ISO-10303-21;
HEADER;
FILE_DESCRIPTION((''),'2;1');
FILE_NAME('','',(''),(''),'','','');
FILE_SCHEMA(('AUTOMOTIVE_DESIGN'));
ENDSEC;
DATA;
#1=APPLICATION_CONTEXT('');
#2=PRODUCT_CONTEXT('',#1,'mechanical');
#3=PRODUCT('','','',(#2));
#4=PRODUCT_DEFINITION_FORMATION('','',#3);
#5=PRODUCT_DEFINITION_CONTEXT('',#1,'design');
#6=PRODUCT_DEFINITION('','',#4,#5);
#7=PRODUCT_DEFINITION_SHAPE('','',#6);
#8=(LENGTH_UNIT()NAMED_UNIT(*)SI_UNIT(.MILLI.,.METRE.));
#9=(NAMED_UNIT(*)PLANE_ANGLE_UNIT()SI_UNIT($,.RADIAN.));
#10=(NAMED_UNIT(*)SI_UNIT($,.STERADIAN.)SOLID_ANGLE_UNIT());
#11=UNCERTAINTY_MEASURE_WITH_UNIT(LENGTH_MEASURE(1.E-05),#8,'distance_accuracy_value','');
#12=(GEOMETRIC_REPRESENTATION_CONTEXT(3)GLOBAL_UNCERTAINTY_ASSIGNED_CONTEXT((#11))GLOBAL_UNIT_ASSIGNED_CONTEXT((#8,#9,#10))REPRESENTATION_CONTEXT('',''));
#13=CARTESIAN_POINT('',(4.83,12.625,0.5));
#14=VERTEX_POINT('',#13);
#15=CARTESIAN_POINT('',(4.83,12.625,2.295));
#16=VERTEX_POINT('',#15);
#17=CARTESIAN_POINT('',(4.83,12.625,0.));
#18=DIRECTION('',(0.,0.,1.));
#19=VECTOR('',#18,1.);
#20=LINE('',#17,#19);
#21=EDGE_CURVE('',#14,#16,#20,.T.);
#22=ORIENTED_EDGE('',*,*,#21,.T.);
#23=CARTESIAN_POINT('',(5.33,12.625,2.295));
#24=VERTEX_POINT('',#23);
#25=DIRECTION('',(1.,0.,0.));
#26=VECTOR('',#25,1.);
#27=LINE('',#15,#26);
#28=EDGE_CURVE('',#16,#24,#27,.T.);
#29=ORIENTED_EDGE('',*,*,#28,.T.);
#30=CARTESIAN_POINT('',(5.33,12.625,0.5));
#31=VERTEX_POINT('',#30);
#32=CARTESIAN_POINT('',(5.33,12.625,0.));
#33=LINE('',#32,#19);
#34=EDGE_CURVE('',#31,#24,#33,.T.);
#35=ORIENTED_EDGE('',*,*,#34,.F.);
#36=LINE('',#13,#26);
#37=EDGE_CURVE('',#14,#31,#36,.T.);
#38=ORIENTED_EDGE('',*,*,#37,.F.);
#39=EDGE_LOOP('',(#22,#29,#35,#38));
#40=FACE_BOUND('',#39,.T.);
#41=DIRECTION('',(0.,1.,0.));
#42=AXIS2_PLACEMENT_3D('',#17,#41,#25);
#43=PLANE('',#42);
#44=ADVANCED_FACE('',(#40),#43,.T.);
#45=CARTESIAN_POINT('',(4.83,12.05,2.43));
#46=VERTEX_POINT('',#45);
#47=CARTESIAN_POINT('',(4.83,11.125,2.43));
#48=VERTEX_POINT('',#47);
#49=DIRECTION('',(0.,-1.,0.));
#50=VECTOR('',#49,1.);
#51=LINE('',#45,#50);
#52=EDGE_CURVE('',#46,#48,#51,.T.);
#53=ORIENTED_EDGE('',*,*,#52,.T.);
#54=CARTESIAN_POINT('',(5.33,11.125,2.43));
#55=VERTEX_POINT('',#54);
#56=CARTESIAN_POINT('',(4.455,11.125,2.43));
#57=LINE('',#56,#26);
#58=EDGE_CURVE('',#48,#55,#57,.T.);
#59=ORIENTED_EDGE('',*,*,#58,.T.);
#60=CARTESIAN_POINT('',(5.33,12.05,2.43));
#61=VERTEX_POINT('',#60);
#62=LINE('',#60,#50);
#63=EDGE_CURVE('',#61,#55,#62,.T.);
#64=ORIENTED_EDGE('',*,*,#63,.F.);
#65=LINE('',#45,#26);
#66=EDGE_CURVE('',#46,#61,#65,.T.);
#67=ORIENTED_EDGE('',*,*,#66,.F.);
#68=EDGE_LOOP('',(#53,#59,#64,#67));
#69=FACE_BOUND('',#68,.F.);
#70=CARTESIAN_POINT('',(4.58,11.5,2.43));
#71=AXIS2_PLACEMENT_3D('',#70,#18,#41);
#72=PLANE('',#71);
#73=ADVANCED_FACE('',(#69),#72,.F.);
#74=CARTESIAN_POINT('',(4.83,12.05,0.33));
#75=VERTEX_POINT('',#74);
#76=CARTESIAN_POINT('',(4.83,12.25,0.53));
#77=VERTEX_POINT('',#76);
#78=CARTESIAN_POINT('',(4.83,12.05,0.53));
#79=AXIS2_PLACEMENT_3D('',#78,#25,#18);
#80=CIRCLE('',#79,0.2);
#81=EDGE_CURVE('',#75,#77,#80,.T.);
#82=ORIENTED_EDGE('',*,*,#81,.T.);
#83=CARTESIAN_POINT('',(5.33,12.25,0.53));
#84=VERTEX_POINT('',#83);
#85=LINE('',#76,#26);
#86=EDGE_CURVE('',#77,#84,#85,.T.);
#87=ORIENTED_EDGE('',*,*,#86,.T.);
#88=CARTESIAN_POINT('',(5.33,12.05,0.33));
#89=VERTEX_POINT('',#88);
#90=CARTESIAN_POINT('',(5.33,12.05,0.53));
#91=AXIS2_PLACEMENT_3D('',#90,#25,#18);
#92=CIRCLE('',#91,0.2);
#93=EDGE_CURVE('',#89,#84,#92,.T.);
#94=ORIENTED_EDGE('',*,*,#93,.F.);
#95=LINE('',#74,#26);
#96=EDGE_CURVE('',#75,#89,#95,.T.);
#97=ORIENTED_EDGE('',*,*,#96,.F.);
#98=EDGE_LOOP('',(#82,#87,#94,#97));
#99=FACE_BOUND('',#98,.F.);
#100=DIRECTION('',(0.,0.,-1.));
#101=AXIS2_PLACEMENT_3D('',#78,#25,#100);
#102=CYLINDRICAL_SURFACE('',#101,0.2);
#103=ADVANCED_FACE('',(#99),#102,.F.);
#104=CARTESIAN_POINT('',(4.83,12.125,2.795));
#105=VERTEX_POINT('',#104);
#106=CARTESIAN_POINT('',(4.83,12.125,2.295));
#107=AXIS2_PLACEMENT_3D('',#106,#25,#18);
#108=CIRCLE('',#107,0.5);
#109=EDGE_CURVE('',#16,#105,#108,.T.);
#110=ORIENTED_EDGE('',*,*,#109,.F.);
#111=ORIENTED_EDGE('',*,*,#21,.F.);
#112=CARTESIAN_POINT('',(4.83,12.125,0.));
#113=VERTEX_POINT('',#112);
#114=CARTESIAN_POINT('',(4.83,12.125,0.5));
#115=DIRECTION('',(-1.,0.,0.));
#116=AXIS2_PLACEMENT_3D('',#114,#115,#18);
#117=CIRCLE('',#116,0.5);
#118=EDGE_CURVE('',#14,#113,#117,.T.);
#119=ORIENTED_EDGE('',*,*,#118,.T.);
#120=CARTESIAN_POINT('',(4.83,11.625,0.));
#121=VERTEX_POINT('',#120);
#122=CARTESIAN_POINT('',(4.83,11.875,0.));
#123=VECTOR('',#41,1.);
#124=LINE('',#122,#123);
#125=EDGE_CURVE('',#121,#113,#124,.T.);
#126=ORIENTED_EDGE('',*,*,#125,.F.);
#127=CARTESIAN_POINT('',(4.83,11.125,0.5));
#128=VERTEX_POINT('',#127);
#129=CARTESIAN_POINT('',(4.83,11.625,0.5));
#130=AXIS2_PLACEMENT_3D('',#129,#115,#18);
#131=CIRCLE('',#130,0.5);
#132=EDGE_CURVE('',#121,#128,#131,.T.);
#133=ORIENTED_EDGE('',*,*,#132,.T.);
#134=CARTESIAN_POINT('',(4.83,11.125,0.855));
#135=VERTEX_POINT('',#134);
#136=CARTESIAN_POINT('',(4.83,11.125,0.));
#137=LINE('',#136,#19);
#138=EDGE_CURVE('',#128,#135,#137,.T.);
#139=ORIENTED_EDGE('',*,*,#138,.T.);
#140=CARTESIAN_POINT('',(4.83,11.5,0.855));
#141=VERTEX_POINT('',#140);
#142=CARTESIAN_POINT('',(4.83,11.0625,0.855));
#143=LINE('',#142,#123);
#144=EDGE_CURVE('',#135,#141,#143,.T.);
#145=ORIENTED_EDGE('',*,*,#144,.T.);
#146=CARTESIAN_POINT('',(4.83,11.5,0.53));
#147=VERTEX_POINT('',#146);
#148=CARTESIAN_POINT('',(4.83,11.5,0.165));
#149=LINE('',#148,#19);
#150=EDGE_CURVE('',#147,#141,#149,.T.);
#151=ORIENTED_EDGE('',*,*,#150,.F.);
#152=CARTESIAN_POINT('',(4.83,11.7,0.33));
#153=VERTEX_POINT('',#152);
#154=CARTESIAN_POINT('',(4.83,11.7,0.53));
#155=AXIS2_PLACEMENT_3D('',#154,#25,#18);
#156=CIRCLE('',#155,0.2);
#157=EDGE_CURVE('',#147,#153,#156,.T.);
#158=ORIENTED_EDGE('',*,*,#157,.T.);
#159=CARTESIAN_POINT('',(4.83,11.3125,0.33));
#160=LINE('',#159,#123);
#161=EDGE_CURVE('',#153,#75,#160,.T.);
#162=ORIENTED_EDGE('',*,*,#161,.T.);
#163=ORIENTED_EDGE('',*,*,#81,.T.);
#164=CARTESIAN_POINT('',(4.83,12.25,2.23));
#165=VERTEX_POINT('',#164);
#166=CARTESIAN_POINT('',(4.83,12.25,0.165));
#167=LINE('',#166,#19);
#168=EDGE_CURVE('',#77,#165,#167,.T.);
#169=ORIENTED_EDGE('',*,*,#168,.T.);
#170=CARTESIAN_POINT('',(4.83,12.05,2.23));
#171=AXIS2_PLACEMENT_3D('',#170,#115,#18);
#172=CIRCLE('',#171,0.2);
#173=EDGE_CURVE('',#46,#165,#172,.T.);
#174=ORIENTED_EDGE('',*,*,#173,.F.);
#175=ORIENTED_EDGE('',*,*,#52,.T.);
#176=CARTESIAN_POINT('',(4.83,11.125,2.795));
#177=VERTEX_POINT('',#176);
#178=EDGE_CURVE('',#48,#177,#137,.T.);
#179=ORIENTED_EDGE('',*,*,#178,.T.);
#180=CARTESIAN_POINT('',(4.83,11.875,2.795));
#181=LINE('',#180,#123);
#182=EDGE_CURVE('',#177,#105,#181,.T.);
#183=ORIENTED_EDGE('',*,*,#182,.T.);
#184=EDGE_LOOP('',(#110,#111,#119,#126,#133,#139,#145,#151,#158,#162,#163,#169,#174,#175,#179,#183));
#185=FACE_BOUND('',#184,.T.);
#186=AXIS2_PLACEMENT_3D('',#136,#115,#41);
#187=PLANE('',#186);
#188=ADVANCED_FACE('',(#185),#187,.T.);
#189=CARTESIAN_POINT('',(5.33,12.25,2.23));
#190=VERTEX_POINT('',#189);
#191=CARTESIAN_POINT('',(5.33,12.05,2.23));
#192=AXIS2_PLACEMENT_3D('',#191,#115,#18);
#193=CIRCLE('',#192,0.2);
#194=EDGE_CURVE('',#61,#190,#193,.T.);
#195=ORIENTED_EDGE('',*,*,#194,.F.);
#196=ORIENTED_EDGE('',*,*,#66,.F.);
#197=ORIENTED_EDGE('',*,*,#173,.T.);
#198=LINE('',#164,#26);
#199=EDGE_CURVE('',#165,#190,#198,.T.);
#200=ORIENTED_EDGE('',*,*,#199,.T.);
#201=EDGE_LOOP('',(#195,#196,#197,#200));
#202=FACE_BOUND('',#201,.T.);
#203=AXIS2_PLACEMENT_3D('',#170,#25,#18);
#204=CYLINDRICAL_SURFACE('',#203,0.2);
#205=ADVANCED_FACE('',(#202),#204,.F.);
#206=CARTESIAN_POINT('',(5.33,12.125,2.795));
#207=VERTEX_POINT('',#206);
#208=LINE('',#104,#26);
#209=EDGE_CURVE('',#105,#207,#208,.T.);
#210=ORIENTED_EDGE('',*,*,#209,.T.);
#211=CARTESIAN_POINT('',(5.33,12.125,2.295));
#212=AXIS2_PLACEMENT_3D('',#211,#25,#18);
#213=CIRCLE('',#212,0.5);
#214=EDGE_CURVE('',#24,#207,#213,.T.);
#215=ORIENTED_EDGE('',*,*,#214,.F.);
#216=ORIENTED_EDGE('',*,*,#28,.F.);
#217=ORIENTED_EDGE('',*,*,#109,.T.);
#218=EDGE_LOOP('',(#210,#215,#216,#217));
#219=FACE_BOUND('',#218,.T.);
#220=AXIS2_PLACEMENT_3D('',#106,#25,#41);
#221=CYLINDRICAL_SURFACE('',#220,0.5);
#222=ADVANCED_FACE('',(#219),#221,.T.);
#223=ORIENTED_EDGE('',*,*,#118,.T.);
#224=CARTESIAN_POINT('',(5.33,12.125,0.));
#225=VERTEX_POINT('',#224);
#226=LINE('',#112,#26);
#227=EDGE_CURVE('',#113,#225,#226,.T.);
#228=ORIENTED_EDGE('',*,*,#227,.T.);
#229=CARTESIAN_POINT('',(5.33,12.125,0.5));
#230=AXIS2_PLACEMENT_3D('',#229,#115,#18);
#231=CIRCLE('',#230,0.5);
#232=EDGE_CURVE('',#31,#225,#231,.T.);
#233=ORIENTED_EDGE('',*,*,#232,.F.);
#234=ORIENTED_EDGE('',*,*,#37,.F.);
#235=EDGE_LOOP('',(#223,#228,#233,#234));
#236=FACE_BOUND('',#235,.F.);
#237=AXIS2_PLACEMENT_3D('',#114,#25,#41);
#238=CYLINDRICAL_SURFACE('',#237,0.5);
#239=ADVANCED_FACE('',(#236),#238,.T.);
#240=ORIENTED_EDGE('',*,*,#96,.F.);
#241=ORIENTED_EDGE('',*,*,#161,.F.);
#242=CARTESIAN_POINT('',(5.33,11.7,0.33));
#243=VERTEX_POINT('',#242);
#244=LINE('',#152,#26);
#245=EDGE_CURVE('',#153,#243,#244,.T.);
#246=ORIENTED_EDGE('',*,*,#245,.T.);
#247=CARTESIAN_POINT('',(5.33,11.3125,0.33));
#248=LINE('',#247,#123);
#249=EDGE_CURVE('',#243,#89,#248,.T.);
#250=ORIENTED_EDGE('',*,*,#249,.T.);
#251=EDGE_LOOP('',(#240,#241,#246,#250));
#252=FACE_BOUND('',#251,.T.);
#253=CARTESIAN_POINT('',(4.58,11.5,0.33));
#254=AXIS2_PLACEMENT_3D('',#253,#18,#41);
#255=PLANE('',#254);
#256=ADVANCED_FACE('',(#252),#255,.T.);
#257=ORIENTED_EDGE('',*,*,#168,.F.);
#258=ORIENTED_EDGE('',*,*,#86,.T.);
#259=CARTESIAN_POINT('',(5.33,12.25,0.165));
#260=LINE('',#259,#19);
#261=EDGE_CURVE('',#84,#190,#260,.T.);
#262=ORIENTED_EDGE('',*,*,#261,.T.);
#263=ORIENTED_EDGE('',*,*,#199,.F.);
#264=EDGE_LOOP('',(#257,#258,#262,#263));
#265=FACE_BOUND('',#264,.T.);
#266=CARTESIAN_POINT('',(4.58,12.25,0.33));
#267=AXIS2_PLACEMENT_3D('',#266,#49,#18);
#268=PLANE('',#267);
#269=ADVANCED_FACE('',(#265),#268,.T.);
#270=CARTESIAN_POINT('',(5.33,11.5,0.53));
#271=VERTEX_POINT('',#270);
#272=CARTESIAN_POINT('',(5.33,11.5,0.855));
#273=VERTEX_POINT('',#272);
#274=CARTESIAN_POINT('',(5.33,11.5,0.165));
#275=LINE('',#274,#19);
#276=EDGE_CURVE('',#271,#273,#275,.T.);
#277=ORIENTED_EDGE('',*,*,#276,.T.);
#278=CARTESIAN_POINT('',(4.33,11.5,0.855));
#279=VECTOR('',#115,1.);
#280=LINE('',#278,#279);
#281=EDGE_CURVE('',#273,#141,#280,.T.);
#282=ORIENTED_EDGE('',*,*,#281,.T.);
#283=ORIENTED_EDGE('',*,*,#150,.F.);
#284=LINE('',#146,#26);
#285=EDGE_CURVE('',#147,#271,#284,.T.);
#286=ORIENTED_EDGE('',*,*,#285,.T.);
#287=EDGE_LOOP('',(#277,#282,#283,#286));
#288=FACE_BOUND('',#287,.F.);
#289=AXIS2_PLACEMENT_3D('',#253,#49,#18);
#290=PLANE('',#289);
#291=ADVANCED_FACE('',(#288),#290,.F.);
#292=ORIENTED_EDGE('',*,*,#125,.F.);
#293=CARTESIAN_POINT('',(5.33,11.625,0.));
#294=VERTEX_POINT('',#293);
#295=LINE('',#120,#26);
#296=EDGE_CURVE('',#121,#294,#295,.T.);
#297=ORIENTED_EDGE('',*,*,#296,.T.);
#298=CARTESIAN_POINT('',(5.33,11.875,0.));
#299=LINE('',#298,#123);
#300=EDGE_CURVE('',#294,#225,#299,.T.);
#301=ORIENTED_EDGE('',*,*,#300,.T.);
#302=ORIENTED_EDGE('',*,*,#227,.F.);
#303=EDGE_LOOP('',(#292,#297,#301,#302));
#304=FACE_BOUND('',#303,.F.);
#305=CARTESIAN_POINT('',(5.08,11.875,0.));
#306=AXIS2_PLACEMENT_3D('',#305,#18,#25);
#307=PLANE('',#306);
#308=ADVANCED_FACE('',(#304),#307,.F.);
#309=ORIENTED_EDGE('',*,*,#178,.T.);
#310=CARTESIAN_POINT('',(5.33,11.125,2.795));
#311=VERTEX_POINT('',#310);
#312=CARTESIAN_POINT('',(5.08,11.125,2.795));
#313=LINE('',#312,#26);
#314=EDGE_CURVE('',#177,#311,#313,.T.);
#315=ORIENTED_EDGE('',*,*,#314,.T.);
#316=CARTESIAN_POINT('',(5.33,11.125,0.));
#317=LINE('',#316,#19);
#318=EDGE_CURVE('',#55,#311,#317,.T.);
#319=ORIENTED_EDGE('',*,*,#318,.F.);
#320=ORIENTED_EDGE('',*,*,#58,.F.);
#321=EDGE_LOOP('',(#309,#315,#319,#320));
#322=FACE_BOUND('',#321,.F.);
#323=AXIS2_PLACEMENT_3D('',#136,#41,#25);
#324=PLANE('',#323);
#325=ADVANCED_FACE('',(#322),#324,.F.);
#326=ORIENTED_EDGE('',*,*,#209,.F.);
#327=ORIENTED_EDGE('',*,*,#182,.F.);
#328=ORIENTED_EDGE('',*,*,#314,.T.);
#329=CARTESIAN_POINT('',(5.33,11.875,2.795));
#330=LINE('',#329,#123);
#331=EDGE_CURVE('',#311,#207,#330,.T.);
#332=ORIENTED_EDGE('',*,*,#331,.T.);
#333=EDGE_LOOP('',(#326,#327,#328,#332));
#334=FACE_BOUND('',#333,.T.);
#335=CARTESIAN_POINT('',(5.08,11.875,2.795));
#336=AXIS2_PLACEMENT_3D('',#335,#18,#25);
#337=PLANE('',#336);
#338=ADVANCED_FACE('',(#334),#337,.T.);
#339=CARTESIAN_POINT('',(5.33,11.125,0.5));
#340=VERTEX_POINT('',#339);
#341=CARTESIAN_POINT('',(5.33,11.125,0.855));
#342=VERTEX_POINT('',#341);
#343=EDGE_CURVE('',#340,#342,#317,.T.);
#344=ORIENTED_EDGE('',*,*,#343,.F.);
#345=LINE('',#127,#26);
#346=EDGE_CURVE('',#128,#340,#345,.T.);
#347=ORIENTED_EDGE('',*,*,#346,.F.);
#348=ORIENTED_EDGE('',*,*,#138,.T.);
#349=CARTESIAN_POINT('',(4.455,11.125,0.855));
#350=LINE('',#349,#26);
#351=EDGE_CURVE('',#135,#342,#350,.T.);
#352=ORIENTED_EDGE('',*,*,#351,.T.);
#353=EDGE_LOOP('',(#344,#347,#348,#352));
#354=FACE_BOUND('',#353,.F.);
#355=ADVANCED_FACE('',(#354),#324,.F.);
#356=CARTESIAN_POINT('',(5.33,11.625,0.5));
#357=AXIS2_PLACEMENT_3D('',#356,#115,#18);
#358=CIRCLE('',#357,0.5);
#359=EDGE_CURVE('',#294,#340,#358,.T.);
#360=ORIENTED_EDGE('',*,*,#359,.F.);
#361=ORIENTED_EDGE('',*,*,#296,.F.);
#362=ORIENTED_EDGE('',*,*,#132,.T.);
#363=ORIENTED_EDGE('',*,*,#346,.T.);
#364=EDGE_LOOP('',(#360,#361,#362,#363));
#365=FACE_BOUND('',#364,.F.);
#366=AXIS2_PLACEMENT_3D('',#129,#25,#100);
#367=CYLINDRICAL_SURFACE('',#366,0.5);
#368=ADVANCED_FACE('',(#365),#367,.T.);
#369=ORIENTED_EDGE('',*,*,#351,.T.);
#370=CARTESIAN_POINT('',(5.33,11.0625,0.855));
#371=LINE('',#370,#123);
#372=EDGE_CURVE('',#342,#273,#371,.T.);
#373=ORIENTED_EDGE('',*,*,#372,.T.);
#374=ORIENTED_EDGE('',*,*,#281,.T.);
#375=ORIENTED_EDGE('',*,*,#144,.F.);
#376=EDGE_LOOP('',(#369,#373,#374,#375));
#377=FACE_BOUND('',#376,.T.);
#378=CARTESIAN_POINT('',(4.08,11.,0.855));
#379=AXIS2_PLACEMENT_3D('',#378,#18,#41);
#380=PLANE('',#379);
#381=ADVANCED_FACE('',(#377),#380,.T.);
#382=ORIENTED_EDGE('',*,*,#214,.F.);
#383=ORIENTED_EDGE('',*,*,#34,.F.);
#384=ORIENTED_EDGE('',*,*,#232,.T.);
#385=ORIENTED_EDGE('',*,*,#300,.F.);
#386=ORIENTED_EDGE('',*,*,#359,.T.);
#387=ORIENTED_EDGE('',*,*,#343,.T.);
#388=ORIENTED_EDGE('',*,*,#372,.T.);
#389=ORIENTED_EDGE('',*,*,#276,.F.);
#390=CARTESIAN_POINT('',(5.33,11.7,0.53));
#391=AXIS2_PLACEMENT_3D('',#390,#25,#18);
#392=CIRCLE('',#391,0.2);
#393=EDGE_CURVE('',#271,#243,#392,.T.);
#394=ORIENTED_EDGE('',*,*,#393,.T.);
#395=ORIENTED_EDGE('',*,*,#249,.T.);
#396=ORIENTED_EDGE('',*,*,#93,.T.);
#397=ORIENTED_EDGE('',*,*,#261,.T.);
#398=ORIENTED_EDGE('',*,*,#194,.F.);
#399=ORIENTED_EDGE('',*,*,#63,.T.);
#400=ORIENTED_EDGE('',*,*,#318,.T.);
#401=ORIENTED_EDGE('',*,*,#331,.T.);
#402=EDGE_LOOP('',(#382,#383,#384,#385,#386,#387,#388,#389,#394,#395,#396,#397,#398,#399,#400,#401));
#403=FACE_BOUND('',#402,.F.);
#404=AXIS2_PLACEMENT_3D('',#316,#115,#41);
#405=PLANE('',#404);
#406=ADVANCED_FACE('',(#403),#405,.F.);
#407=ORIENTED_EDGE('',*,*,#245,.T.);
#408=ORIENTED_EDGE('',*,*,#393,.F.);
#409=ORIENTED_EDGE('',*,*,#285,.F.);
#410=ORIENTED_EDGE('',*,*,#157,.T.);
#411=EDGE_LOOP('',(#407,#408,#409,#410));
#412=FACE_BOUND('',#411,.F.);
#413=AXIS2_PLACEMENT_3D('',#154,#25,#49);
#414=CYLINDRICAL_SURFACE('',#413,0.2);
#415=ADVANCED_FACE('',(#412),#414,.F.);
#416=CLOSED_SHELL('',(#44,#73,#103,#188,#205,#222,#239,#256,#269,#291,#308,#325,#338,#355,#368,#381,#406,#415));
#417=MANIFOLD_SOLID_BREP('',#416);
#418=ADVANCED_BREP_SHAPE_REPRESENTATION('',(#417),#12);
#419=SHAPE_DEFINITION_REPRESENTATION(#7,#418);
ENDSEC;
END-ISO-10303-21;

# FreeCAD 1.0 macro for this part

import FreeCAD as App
import Part
import Sketcher


def edges_at(feature, points):
    """Names of the edges that pass closest to the given points."""
    edges = feature.Shape.Edges
    near = lambda p: min(range(len(edges)), key=lambda i: edges[i].distToShape(Part.Vertex(*p))[0])
    return sorted({f"Edge{near(p) + 1}" for p in points})


def add_polygon(sketch, points):
    """Adds a closed chain of lines whose ends are joined by coincident constraints."""
    first, n = sketch.GeometryCount, len(points)
    for a, b in zip(points, points[1:] + points[:1]):
        sketch.addGeometry(Part.LineSegment(App.Vector(*a, 0), App.Vector(*b, 0)), False)
    for i in range(n):
        sketch.addConstraint(Sketcher.Constraint("Coincident", first + i, 2, first + (i + 1) % n, 1))

doc = App.newDocument("Part")
params = doc.addObject("Spreadsheet::Sheet", "Params")
for row, (alias, value) in enumerate([
    ("sketch1_width", "0.5 mm"),
    ("sketch1_height", "1.5 mm"),
    ("pad1_length", "2.795 mm"),
    ("fillet_radius", "0.5 mm"),
    ("fillet2_radius", "0.5 mm"),
    ("fillet3_radius", "0.5 mm"),
    ("sketch2_height", "2.1 mm"),
    ("sketch2_width", "0.75 mm"),
    ("pocket1_length", "1 mm"),
    ("fillet4_radius", "0.2 mm"),
    ("fillet5_radius", "0.2 mm"),
    ("fillet6_radius", "0.2 mm"),
    ("fillet7_radius", "0.2 mm"),
    ("sketch3_width", "1 mm"),
    ("pocket2_length", "3 mm"),
], start=1):
    params.set(f"A{row}", alias)
    params.set(f"B{row}", "=" + value)
    params.setAlias(f"B{row}", alias)

body = doc.addObject("PartDesign::Body", "Body")

# Sketch on XY plane
sketch1 = doc.addObject("Sketcher::SketchObject", "Sketch")
body.addObject(sketch1)
sketch1.AttachmentSupport = (doc.XY_Plane, [""])
sketch1.MapMode = "FlatFace"
add_polygon(sketch1, [(-0.2, 12.6), (-0.2, 11.1), (0.2, 11.1), (0.2, 12.6)])  # lines 0-3
sketch1.addConstraint([
    Sketcher.Constraint("Vertical", 0),
    Sketcher.Constraint("Horizontal", 1),
    Sketcher.Constraint("Vertical", 2),
    Sketcher.Constraint("Horizontal", 3),
    Sketcher.Constraint("DistanceX", 1, 1, 1, 2, 0.5),
    Sketcher.Constraint("DistanceY", 0, 2, 0, 1, 1.5),
    Sketcher.Constraint("DistanceX", 0, 2, -1, 1, 0.25),
    Sketcher.Constraint("DistanceY", -1, 1, 0, 2, 11.125),
])
sketch1.setExpression("Constraints[8]", "Params.sketch1_width")
sketch1.setExpression("Constraints[9]", "Params.sketch1_height")
pad1 = doc.addObject("PartDesign::Pad", "Pad")
body.addObject(pad1)
pad1.Profile = sketch1
pad1.setExpression("Length", "Params.pad1_length")
doc.recompute()

fillet = doc.addObject("PartDesign::Fillet", "Fillet")
body.addObject(fillet)
fillet.Base = (pad1, edges_at(pad1, [(0, 12.625, 0)]))
fillet.setExpression("Radius", "Params.fillet_radius")
doc.recompute()

fillet2 = doc.addObject("PartDesign::Fillet", "Fillet001")
body.addObject(fillet2)
fillet2.Base = (fillet, edges_at(fillet, [(0, 12.625, 2.795)]))
fillet2.setExpression("Radius", "Params.fillet2_radius")
doc.recompute()

fillet3 = doc.addObject("PartDesign::Fillet", "Fillet002")
body.addObject(fillet3)
fillet3.Base = (fillet2, edges_at(fillet2, [(0, 11.125, 0)]))
fillet3.setExpression("Radius", "Params.fillet3_radius")

# Sketch on YZ plane
sketch2 = doc.addObject("Sketcher::SketchObject", "Sketch001")
body.addObject(sketch2)
sketch2.AttachmentSupport = (doc.YZ_Plane, [""])
sketch2.MapMode = "FlatFace"
sketch2.AttachmentOffset = App.Placement(App.Vector(0, 0, -0.5), App.Rotation())
add_polygon(sketch2, [(11.5, 2.4), (11.5, 0.3), (12.2, 0.3), (12.2, 2.4)])  # lines 0-3
sketch2.addConstraint([
    Sketcher.Constraint("Vertical", 0),
    Sketcher.Constraint("Horizontal", 1),
    Sketcher.Constraint("Vertical", 2),
    Sketcher.Constraint("Horizontal", 3),
    Sketcher.Constraint("DistanceY", 0, 2, 0, 1, 2.1),
    Sketcher.Constraint("DistanceX", 1, 1, 1, 2, 0.75),
    Sketcher.Constraint("DistanceX", -1, 1, 0, 2, 11.5),
    Sketcher.Constraint("DistanceY", -1, 1, 0, 2, 0.33),
])
sketch2.setExpression("Constraints[8]", "Params.sketch2_height")
sketch2.setExpression("Constraints[9]", "Params.sketch2_width")
pocket1 = doc.addObject("PartDesign::Pocket", "Pocket")
body.addObject(pocket1)
pocket1.Profile = sketch2
pocket1.setExpression("Length", "Params.pocket1_length")
pocket1.Reversed = True
doc.recompute()

fillet4 = doc.addObject("PartDesign::Fillet", "Fillet003")
body.addObject(fillet4)
fillet4.Base = (pocket1, edges_at(pocket1, [(0, 11.5, 0.33)]))
fillet4.setExpression("Radius", "Params.fillet4_radius")
doc.recompute()

fillet5 = doc.addObject("PartDesign::Fillet", "Fillet004")
body.addObject(fillet5)
fillet5.Base = (fillet4, edges_at(fillet4, [(0, 12.25, 0.33)]))
fillet5.setExpression("Radius", "Params.fillet5_radius")
doc.recompute()

fillet6 = doc.addObject("PartDesign::Fillet", "Fillet005")
body.addObject(fillet6)
fillet6.Base = (fillet5, edges_at(fillet5, [(0, 11.5, 2.43)]))
fillet6.setExpression("Radius", "Params.fillet6_radius")
doc.recompute()

fillet7 = doc.addObject("PartDesign::Fillet", "Fillet006")
body.addObject(fillet7)
fillet7.Base = (fillet6, edges_at(fillet6, [(0, 12.25, 2.43)]))
fillet7.setExpression("Radius", "Params.fillet7_radius")

# Sketch on YZ plane
sketch3 = doc.addObject("Sketcher::SketchObject", "Sketch002")
body.addObject(sketch3)
sketch3.AttachmentSupport = (doc.YZ_Plane, [""])
sketch3.MapMode = "FlatFace"
sketch3.AttachmentOffset = App.Placement(App.Vector(0, 0, -1), App.Rotation())
add_polygon(sketch3, [(11, 2.4), (11, 0.9), (12, 0.9), (12, 2.4)])  # lines 0-3
sketch3.addConstraint([
    Sketcher.Constraint("Vertical", 0),
    Sketcher.Constraint("Horizontal", 1),
    Sketcher.Constraint("Vertical", 2),
    Sketcher.Constraint("Horizontal", 3),
    Sketcher.Constraint("DistanceX", 1, 1, 1, 2, 1.0),
    Sketcher.Constraint("DistanceX", -1, 1, 0, 2, 11.0),
    Sketcher.Constraint("DistanceY", 0, 2, 0, 1, 1.575),
    Sketcher.Constraint("DistanceY", -1, 1, 2, 2, 2.43),
])
sketch3.setExpression("Constraints[8]", "Params.sketch3_width")
pocket2 = doc.addObject("PartDesign::Pocket", "Pocket001")
body.addObject(pocket2)
pocket2.Profile = sketch3
pocket2.setExpression("Length", "Params.pocket2_length")
pocket2.Reversed = True
body2 = doc.addObject("PartDesign::Body", "Body001")
doc.recompute()

body.Placement = App.Placement(App.Vector(5.08, 0, 0), App.Rotation(App.Vector(0, 0, 1), 0))
boolean = doc.addObject("PartDesign::Boolean", "Boolean")
body2.addObject(boolean)
boolean.Type = "Fuse"
boolean.addObjects([body])

doc.recompute()
